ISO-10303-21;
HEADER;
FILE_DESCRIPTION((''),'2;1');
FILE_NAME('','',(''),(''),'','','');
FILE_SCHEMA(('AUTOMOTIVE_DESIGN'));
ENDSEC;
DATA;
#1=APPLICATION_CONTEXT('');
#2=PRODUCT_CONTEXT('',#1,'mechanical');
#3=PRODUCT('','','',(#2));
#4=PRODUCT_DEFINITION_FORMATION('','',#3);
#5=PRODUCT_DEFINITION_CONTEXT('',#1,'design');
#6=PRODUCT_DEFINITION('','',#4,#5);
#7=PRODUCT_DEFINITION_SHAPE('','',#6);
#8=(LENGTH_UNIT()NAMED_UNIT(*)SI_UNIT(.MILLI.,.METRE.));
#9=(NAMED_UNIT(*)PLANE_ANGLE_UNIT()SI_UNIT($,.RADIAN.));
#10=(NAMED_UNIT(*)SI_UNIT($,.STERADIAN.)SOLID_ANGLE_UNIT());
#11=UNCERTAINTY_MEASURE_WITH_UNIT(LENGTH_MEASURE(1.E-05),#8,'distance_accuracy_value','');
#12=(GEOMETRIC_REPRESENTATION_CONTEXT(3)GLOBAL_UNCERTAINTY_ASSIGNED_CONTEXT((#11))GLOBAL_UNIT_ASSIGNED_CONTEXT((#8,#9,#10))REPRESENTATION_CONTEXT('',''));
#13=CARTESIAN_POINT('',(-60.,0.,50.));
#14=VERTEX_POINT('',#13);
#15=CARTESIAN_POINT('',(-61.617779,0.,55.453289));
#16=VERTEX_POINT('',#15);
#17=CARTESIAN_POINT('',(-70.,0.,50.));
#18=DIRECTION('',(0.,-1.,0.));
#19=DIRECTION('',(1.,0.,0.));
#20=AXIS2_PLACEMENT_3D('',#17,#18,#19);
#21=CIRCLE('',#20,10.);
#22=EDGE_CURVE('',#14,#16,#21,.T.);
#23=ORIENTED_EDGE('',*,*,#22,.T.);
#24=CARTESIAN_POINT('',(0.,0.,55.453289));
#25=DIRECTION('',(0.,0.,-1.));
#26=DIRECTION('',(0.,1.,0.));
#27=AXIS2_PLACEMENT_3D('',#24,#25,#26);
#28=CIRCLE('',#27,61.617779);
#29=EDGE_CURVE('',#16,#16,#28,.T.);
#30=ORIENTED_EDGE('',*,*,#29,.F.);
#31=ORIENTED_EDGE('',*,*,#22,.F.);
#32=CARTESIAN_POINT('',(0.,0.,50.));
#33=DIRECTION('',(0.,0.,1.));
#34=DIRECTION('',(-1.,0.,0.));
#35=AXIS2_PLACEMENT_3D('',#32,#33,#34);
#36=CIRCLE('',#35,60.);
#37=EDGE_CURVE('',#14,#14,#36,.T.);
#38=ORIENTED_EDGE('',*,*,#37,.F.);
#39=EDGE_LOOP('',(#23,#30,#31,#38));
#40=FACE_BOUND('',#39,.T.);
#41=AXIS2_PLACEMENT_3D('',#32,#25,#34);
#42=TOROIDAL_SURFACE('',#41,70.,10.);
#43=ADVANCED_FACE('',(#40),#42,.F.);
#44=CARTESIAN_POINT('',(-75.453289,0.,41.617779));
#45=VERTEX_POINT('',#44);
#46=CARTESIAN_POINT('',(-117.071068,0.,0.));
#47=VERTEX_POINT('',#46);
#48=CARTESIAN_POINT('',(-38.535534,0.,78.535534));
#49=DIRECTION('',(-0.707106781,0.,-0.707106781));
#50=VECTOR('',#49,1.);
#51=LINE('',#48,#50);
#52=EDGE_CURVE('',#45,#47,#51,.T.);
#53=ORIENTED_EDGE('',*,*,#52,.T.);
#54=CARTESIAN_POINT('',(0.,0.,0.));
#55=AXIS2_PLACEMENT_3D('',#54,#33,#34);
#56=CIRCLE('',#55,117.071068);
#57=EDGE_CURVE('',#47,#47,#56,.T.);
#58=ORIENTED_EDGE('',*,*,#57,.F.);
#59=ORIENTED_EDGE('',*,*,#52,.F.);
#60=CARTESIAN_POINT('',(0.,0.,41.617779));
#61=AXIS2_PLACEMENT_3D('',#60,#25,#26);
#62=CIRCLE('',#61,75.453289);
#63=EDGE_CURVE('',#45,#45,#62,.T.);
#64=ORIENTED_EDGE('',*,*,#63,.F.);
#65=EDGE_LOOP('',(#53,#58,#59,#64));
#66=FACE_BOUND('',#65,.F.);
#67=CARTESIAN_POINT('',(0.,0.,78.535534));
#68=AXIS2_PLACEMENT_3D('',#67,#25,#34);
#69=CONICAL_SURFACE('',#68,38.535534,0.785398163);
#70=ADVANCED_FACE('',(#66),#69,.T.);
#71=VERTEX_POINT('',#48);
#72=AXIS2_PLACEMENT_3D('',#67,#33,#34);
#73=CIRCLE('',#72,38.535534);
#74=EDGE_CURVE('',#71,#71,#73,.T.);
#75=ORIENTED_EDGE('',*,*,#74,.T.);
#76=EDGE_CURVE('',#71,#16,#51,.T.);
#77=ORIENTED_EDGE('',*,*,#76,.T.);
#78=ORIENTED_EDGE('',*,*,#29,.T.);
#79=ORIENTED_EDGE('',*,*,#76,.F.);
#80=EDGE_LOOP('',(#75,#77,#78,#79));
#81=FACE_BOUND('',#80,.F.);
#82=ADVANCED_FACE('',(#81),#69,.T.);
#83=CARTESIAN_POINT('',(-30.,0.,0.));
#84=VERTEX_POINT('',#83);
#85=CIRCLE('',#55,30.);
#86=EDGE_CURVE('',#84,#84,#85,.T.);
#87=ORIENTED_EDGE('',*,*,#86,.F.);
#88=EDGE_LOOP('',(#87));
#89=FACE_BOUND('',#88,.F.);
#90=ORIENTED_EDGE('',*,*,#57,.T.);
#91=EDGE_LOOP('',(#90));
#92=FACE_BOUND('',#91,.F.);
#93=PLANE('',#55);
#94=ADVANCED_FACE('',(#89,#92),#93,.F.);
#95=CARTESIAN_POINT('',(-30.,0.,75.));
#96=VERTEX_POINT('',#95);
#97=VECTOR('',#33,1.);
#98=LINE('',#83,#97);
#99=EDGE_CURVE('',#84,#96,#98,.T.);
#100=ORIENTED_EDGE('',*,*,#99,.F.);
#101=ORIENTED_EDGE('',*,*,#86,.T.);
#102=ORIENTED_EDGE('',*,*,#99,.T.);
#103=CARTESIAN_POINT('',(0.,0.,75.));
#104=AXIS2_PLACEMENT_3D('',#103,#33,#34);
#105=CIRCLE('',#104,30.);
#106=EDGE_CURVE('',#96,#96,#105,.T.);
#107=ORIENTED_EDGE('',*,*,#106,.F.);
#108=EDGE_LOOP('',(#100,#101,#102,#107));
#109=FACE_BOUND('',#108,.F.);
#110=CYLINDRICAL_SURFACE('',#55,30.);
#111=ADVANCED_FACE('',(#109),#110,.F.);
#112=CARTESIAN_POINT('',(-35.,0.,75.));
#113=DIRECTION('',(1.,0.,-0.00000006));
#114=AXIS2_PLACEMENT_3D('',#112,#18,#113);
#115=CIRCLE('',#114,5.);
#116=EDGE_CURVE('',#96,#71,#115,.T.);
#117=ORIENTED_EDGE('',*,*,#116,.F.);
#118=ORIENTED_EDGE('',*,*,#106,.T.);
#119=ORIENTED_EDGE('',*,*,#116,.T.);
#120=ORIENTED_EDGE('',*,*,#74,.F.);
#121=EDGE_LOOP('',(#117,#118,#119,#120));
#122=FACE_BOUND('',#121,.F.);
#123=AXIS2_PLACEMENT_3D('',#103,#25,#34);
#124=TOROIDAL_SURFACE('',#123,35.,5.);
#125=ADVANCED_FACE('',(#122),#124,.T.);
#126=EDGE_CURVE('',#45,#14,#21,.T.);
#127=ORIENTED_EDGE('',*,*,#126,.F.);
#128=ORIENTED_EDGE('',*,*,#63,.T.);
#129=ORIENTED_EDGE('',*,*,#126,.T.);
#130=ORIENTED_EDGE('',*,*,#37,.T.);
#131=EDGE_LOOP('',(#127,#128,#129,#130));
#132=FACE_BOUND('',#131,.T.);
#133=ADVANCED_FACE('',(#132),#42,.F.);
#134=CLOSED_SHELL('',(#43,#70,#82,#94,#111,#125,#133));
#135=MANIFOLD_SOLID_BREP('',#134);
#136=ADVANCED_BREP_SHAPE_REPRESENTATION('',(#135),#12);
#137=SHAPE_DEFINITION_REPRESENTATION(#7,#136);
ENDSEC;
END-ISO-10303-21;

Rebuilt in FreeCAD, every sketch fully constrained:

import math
import FreeCAD as App
import Part
import Sketcher
from FreeCAD import Vector
Q = App.Units.Quantity

doc = App.newDocument("Part")
body = doc.addObject("PartDesign::Body", "Body")

# Sketch on XZ plane
sketch1 = body.newObject("Sketcher::SketchObject", "Sketch")
sketch1.AttachmentSupport = (doc.getObject("XZ_Plane"), [""])
sketch1.MapMode = "FlatFace"
sketch1.addGeometry(Part.LineSegment(Vector(-117.071068, 0, 0), Vector(-30, 0, 0)), False)
sketch1.addGeometry(Part.LineSegment(Vector(-30, 0, 0), Vector(-30, 75, 0)), False)
sketch1.addGeometry(Part.ArcOfCircle(Part.Circle(Vector(-35, 75, 0), Vector(0, 0, 1), 5), math.radians(-0.000003), math.radians(135.000003)), False)
sketch1.addGeometry(Part.LineSegment(Vector(-38.535534, 78.535534, 0), Vector(-117.071068, 0, 0)), False)
sketch1.addConstraint(Sketcher.Constraint("Coincident", 0, 2, 1, 1))
sketch1.addConstraint(Sketcher.Constraint("Tangent", 1, 2, 2, 1))
sketch1.addConstraint(Sketcher.Constraint("Tangent", 2, 2, 3, 1))
sketch1.addConstraint(Sketcher.Constraint("Coincident", 3, 2, 0, 1))
sketch1.addConstraint(Sketcher.Constraint("Horizontal", 0))
sketch1.addConstraint(Sketcher.Constraint("Vertical", 1))
sketch1.addConstraint(Sketcher.Constraint("PointOnObject", 0, 2, -1))
sketch1.addConstraint(Sketcher.Constraint("Radius", 2, 5.0))
sketch1.addConstraint(Sketcher.Constraint("DistanceY", 1, 1, 1, 2, 75.0))
sketch1.addConstraint(Sketcher.Constraint("Angle", 3, Q("-135 deg")))
sketch1.addConstraint(Sketcher.Constraint("DistanceX", 2, 3, -1, 1, 35.0))
revolution = body.newObject("PartDesign::Revolution", "Revolution")
revolution.Profile = sketch1
revolution.ReferenceAxis = (sketch1, ["V_Axis"])
revolution.Angle = 360

# Sketch on XZ plane
sketch2 = body.newObject("Sketcher::SketchObject", "Sketch001")
sketch2.AttachmentSupport = (doc.getObject("XZ_Plane"), [""])
sketch2.MapMode = "FlatFace"
sketch2.addGeometry(Part.Circle(Vector(-70, 50, 0), Vector(0, 0, 1), 10), False)
sketch2.addConstraint(Sketcher.Constraint("Diameter", 0, 20.0))
sketch2.addConstraint(Sketcher.Constraint("DistanceX", 0, 3, -1, 1, 70.0))
sketch2.addConstraint(Sketcher.Constraint("DistanceY", -1, 1, 0, 3, 50.0))
groove = body.newObject("PartDesign::Groove", "Groove")
groove.Profile = sketch2
groove.ReferenceAxis = (sketch2, ["V_Axis"])
groove.Angle = 360

doc.recompute()
